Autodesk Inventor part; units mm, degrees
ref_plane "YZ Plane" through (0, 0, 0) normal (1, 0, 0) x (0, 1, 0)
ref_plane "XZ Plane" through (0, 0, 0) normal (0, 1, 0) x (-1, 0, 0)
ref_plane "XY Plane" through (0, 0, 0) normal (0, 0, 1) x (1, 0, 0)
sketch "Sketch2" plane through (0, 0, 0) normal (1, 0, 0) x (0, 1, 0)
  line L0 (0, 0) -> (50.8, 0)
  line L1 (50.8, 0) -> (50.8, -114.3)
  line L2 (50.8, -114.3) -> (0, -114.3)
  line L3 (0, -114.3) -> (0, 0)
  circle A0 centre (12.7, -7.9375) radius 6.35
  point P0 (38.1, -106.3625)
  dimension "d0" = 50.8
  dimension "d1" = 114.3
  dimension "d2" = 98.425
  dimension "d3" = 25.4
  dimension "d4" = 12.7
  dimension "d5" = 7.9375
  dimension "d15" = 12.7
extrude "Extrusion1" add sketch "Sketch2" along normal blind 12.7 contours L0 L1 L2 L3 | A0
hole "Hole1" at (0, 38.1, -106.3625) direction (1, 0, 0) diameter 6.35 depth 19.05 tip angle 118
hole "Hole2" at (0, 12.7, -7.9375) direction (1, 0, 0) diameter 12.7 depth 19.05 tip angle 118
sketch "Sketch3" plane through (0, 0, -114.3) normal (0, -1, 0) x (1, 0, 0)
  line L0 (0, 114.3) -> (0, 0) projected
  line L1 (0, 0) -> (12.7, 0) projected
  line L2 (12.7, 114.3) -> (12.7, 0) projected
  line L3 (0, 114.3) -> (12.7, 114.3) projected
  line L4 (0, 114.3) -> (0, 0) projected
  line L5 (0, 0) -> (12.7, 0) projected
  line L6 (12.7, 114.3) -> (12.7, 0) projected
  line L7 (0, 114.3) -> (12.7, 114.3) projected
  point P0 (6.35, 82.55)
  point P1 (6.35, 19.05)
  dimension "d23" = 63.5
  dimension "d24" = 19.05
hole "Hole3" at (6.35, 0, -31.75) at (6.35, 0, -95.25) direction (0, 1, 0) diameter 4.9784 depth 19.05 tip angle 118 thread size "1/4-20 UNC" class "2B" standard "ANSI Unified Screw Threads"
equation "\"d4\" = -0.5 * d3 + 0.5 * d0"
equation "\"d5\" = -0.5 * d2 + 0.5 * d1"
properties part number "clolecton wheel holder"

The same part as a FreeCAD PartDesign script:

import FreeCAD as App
import Part
import Sketcher
Q = App.Units.Quantity

doc = App.newDocument("Part")
params = doc.addObject("Spreadsheet::Sheet", "Params")
for row, (alias, value) in enumerate([
    ("sketch1_width", "2 in"),
    ("sketch1_height", "4.5 in"),
    ("pad1_length", "0.5 in"),
    ("sketch2_diameter", "0.25 in"),
    ("hole_diameter", "0.25 in"),
    ("hole_depth", "0.75 in"),
    ("sketch3_diameter", "0.5 in"),
    ("hole2_diameter", "0.5 in"),
    ("hole2_depth", "0.75 in"),
    ("sketch4_diameter", "0.196 in"),
    ("hole3_diameter", "0.196 in"),
    ("hole3_depth", "0.75 in"),
], start=1):
    params.set(f"A{row}", alias)
    params.set(f"B{row}", "=" + value)
    params.setAlias(f"B{row}", alias)

body = doc.addObject("PartDesign::Body", "Body")

sketch1 = doc.addObject("Sketcher::SketchObject", "Sketch")
body.addObject(sketch1)
sketch1.AttachmentSupport = (doc.YZ_Plane, [""])
sketch1.MapMode = "FlatFace"
sketch1.addGeometry([
    Part.LineSegment(App.Vector(51, 0, 0), App.Vector(0, 0, 0)),
    Part.LineSegment(App.Vector(0, 0, 0), App.Vector(0, -114, 0)),
    Part.LineSegment(App.Vector(0, -114, 0), App.Vector(51, -114, 0)),
    Part.LineSegment(App.Vector(51, -114, 0), App.Vector(51, 0, 0)),
], False)
sketch1.addConstraint([
    Sketcher.Constraint("Coincident", 0, 2, 1, 1),
    Sketcher.Constraint("Coincident", 1, 2, 2, 1),
    Sketcher.Constraint("Coincident", 2, 2, 3, 1),
    Sketcher.Constraint("Coincident", 3, 2, 0, 1),
    Sketcher.Constraint("Horizontal", 0),
    Sketcher.Constraint("Vertical", 1),
    Sketcher.Constraint("Horizontal", 2),
    Sketcher.Constraint("Vertical", 3),
    Sketcher.Constraint("Coincident", 0, 2, -1, 1),
    Sketcher.Constraint("DistanceX", 0, 2, 0, 1, Q("2 in")),
    Sketcher.Constraint("DistanceY", 1, 2, 1, 1, Q("4.5 in")),
])
sketch1.setExpression("Constraints[9]", "Params.sketch1_width")
sketch1.setExpression("Constraints[10]", "Params.sketch1_height")
pad1 = doc.addObject("PartDesign::Pad", "Pad")
body.addObject(pad1)
pad1.Profile = sketch1
pad1.setExpression("Length", "Params.pad1_length")

sketch2 = doc.addObject("Sketcher::SketchObject", "Sketch001")
body.addObject(sketch2)
sketch2.AttachmentSupport = (doc.YZ_Plane, [""])
sketch2.MapMode = "FlatFace"
sketch2.addGeometry(Part.Circle(App.Vector(38.1, -106.4, 0), App.Vector(0, 0, 1), 3.2), False)
sketch2.addConstraint([
    Sketcher.Constraint("Diameter", 0, Q("0.25 in")),
    Sketcher.Constraint("DistanceX", -1, 1, 0, 3, Q("1.5 in")),
    Sketcher.Constraint("DistanceY", 0, 3, -1, 1, Q("4.1875 in")),
])
sketch2.setExpression("Constraints[0]", "Params.sketch2_diameter")
doc.recompute()
hole = doc.addObject("PartDesign::Hole", "Hole")
body.addObject(hole)
hole.Profile = sketch2
hole.ThreadType = "None"
hole.setExpression("Diameter", "Params.hole_diameter")
hole.DepthType = "Dimension"
hole.setExpression("Depth", "Params.hole_depth")
hole.DrillPoint = "Angled"
hole.DrillPointAngle = 118
hole.Reversed = True

sketch3 = doc.addObject("Sketcher::SketchObject", "Sketch002")
body.addObject(sketch3)
sketch3.AttachmentSupport = (doc.YZ_Plane, [""])
sketch3.MapMode = "FlatFace"
sketch3.addGeometry(Part.Circle(App.Vector(13, -8, 0), App.Vector(0, 0, 1), 6), False)
sketch3.addConstraint([
    Sketcher.Constraint("Diameter", 0, Q("0.5 in")),
    Sketcher.Constraint("DistanceX", -1, 1, 0, 3, Q("0.5 in")),
    Sketcher.Constraint("DistanceY", 0, 3, -1, 1, Q("0.3125 in")),
])
sketch3.setExpression("Constraints[0]", "Params.sketch3_diameter")
doc.recompute()
hole2 = doc.addObject("PartDesign::Hole", "Hole001")
body.addObject(hole2)
hole2.Profile = sketch3
hole2.ThreadType = "None"
hole2.setExpression("Diameter", "Params.hole2_diameter")
hole2.DepthType = "Dimension"
hole2.setExpression("Depth", "Params.hole2_depth")
hole2.DrillPoint = "Angled"
hole2.DrillPointAngle = 118
hole2.Reversed = True

sketch4 = doc.addObject("Sketcher::SketchObject", "Sketch003")
body.addObject(sketch4)
sketch4.AttachmentSupport = (doc.XZ_Plane, [""])
sketch4.MapMode = "FlatFace"
sketch4.addGeometry([
    Part.Circle(App.Vector(6.3, -31.8, 0), App.Vector(0, 0, 1), 2.5),
    Part.Circle(App.Vector(6.3, -95.2, 0), App.Vector(0, 0, 1), 2.5),
], False)
sketch4.addConstraint([
    Sketcher.Constraint("Equal", 0, 1),
    Sketcher.Constraint("Vertical", 0, 3, 1, 3),
    Sketcher.Constraint("Diameter", 0, Q("0.196 in")),
    Sketcher.Constraint("DistanceY", 1, 3, 0, 3, Q("2.5 in")),
    Sketcher.Constraint("DistanceX", -1, 1, 0, 3, Q("0.25 in")),
    Sketcher.Constraint("DistanceY", 0, 3, -1, 1, Q("1.25 in")),
])
sketch4.setExpression("Constraints[2]", "Params.sketch4_diameter")
doc.recompute()
hole3 = doc.addObject("PartDesign::Hole", "Hole002")
body.addObject(hole3)
hole3.Profile = sketch4
hole3.ThreadType = "None"
hole3.setExpression("Diameter", "Params.hole3_diameter")
hole3.DepthType = "Dimension"
hole3.setExpression("Depth", "Params.hole3_depth")
hole3.DrillPoint = "Angled"
hole3.DrillPointAngle = 118

doc.recompute()
